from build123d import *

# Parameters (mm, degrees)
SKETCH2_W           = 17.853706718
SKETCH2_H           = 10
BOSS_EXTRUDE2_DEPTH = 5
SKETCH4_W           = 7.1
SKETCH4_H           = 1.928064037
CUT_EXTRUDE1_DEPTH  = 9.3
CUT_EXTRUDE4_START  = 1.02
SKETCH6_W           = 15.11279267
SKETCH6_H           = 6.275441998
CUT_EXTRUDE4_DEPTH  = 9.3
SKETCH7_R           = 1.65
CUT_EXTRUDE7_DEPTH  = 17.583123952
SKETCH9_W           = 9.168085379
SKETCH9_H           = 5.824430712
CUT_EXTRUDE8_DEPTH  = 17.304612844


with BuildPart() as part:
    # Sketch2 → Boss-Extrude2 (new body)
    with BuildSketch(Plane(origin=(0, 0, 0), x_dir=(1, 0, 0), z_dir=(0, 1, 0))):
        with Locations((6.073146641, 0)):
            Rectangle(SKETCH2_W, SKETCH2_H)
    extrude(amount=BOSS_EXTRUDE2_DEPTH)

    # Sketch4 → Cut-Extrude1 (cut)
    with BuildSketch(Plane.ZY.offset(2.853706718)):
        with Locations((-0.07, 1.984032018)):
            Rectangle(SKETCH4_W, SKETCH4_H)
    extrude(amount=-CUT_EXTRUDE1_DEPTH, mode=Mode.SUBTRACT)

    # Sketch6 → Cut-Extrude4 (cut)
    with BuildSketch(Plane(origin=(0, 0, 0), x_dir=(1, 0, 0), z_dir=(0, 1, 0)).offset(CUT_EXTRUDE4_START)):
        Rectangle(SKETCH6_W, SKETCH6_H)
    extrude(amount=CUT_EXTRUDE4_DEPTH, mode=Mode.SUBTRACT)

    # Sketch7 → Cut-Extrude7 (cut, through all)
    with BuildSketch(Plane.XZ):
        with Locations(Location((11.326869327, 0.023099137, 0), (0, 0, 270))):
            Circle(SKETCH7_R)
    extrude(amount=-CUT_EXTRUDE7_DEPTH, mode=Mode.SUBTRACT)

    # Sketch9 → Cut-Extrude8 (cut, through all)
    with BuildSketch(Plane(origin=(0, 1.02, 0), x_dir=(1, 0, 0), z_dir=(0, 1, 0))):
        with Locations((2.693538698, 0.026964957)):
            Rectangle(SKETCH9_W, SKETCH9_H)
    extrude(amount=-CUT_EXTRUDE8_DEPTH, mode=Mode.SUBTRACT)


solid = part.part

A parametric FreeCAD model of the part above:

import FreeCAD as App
import Part
import Sketcher

V = App.Vector


def add_polygon(sketch, points):
    """Adds a closed chain of lines whose ends are joined by coincident constraints."""
    first, n = sketch.GeometryCount, len(points)
    for a, b in zip(points, points[1:] + points[:1]):
        sketch.addGeometry(Part.LineSegment(App.Vector(*a, 0), App.Vector(*b, 0)), False)
    for i in range(n):
        sketch.addConstraint(Sketcher.Constraint("Coincident", first + i, 2, first + (i + 1) % n, 1))

doc = App.newDocument("Part")
body = doc.addObject("PartDesign::Body", "Body")

sketch1 = body.newObject("Sketcher::SketchObject", "Sketch")
sketch1.AttachmentSupport = (doc.getObject("XZ_Plane"), [""])
sketch1.MapMode = "FlatFace"
add_polygon(sketch1, [(-2.853707, -5), (-2.853707, 5), (15, 5), (15, -5)])
sketch1.addConstraint(Sketcher.Constraint("Vertical", 0))
sketch1.addConstraint(Sketcher.Constraint("Horizontal", 1))
sketch1.addConstraint(Sketcher.Constraint("Vertical", 2))
sketch1.addConstraint(Sketcher.Constraint("Horizontal", 3))
sketch1.addConstraint(Sketcher.Constraint("DistanceY", 0, 1, 0, 2, 10.0))
sketch1.addConstraint(Sketcher.Constraint("DistanceY", -1, 1, 0, 2, 5.0))
sketch1.addConstraint(Sketcher.Constraint("DistanceX", -1, 1, 1, 2, 15.0))
sketch1.addConstraint(Sketcher.Constraint("DistanceX", 1, 1, 1, 2, 17.853707))
pad1 = body.newObject("PartDesign::Pad", "Pad")
pad1.Profile = sketch1
pad1.Length = 5
pad1.Reversed = True

sketch2 = body.newObject("Sketcher::SketchObject", "Sketch001")
sketch2.AttachmentSupport = (doc.getObject("YZ_Plane"), [""])
sketch2.MapMode = "FlatFace"
sketch2.AttachmentOffset = App.Placement(V(0, 0, -2.853707), App.Rotation())
add_polygon(sketch2, [(2.948064, -3.62), (1.02, -3.62), (1.02, 3.48), (2.948064, 3.48)])
sketch2.addConstraint(Sketcher.Constraint("Horizontal", 0))
sketch2.addConstraint(Sketcher.Constraint("Vertical", 1))
sketch2.addConstraint(Sketcher.Constraint("Horizontal", 2))
sketch2.addConstraint(Sketcher.Constraint("Vertical", 3))
sketch2.addConstraint(Sketcher.Constraint("DistanceY", 1, 1, 1, 2, 7.1))
sketch2.addConstraint(Sketcher.Constraint("DistanceX", -1, 1, 0, 2, 1.02))
sketch2.addConstraint(Sketcher.Constraint("DistanceY", 0, 2, -1, 1, 3.62))
sketch2.addConstraint(Sketcher.Constraint("DistanceX", 0, 2, 0, 1, 1.928064))
pocket1 = body.newObject("PartDesign::Pocket", "Pocket")
pocket1.Profile = sketch2
pocket1.Length = 9.3
pocket1.Reversed = True

sketch3 = body.newObject("Sketcher::SketchObject", "Sketch002")
sketch3.AttachmentSupport = (doc.getObject("XZ_Plane"), [""])
sketch3.MapMode = "FlatFace"
sketch3.AttachmentOffset = App.Placement(V(0, 0, -1.02), App.Rotation())
add_polygon(sketch3, [(-7.556396, -3.137721), (-7.556396, 3.137721), (7.556396, 3.137721), (7.556396, -3.137721)])
sketch3.addConstraint(Sketcher.Constraint("Vertical", 0))
sketch3.addConstraint(Sketcher.Constraint("Horizontal", 1))
sketch3.addConstraint(Sketcher.Constraint("Vertical", 2))
sketch3.addConstraint(Sketcher.Constraint("Horizontal", 3))
sketch3.addConstraint(Sketcher.Constraint("Symmetric", 0, 2, 2, 2, -1, 1))
sketch3.addConstraint(Sketcher.Constraint("DistanceY", 0, 1, 0, 2, 6.275442))
sketch3.addConstraint(Sketcher.Constraint("DistanceX", 1, 1, 1, 2, 15.112793))
pocket2 = body.newObject("PartDesign::Pocket", "Pocket001")
pocket2.Profile = sketch3
pocket2.Length = 9.3

sketch4 = body.newObject("Sketcher::SketchObject", "Sketch003")
sketch4.AttachmentSupport = (doc.getObject("XZ_Plane"), [""])
sketch4.MapMode = "FlatFace"
sketch4.addGeometry(Part.Circle(V(11.326869, 0.023099, 0), V(0, 0, 1), 1.65), False)
sketch4.addConstraint(Sketcher.Constraint("Diameter", 0, 3.3))
sketch4.addConstraint(Sketcher.Constraint("DistanceY", -1, 1, 0, 3, 0.023099))
sketch4.addConstraint(Sketcher.Constraint("DistanceX", -1, 1, 0, 3, 11.326869))
pocket3 = body.newObject("PartDesign::Pocket", "Pocket002")
pocket3.Profile = sketch4
pocket3.Type = "ThroughAll"

sketch5 = body.newObject("Sketcher::SketchObject", "Sketch004")
sketch5.AttachmentSupport = (doc.getObject("XZ_Plane"), [""])
sketch5.MapMode = "FlatFace"
sketch5.AttachmentOffset = App.Placement(V(0, 0, -1.02), App.Rotation())
add_polygon(sketch5, [(-1.890504, -2.93918), (-1.890504, 2.88525), (7.277581, 2.88525), (7.277581, -2.93918)])
sketch5.addConstraint(Sketcher.Constraint("Vertical", 0))
sketch5.addConstraint(Sketcher.Constraint("Horizontal", 1))
sketch5.addConstraint(Sketcher.Constraint("Vertical", 2))
sketch5.addConstraint(Sketcher.Constraint("Horizontal", 3))
sketch5.addConstraint(Sketcher.Constraint("DistanceY", 0, 1, 0, 2, 5.824431))
sketch5.addConstraint(Sketcher.Constraint("DistanceX", 1, 1, 1, 2, 9.168085))
sketch5.addConstraint(Sketcher.Constraint("DistanceY", -1, 1, 0, 2, 2.88525))
sketch5.addConstraint(Sketcher.Constraint("DistanceX", -1, 1, 1, 2, 7.277581))
pocket4 = body.newObject("PartDesign::Pocket", "Pocket003")
pocket4.Profile = sketch5
pocket4.Type = "ThroughAll"
pocket4.Reversed = True

doc.recompute()
